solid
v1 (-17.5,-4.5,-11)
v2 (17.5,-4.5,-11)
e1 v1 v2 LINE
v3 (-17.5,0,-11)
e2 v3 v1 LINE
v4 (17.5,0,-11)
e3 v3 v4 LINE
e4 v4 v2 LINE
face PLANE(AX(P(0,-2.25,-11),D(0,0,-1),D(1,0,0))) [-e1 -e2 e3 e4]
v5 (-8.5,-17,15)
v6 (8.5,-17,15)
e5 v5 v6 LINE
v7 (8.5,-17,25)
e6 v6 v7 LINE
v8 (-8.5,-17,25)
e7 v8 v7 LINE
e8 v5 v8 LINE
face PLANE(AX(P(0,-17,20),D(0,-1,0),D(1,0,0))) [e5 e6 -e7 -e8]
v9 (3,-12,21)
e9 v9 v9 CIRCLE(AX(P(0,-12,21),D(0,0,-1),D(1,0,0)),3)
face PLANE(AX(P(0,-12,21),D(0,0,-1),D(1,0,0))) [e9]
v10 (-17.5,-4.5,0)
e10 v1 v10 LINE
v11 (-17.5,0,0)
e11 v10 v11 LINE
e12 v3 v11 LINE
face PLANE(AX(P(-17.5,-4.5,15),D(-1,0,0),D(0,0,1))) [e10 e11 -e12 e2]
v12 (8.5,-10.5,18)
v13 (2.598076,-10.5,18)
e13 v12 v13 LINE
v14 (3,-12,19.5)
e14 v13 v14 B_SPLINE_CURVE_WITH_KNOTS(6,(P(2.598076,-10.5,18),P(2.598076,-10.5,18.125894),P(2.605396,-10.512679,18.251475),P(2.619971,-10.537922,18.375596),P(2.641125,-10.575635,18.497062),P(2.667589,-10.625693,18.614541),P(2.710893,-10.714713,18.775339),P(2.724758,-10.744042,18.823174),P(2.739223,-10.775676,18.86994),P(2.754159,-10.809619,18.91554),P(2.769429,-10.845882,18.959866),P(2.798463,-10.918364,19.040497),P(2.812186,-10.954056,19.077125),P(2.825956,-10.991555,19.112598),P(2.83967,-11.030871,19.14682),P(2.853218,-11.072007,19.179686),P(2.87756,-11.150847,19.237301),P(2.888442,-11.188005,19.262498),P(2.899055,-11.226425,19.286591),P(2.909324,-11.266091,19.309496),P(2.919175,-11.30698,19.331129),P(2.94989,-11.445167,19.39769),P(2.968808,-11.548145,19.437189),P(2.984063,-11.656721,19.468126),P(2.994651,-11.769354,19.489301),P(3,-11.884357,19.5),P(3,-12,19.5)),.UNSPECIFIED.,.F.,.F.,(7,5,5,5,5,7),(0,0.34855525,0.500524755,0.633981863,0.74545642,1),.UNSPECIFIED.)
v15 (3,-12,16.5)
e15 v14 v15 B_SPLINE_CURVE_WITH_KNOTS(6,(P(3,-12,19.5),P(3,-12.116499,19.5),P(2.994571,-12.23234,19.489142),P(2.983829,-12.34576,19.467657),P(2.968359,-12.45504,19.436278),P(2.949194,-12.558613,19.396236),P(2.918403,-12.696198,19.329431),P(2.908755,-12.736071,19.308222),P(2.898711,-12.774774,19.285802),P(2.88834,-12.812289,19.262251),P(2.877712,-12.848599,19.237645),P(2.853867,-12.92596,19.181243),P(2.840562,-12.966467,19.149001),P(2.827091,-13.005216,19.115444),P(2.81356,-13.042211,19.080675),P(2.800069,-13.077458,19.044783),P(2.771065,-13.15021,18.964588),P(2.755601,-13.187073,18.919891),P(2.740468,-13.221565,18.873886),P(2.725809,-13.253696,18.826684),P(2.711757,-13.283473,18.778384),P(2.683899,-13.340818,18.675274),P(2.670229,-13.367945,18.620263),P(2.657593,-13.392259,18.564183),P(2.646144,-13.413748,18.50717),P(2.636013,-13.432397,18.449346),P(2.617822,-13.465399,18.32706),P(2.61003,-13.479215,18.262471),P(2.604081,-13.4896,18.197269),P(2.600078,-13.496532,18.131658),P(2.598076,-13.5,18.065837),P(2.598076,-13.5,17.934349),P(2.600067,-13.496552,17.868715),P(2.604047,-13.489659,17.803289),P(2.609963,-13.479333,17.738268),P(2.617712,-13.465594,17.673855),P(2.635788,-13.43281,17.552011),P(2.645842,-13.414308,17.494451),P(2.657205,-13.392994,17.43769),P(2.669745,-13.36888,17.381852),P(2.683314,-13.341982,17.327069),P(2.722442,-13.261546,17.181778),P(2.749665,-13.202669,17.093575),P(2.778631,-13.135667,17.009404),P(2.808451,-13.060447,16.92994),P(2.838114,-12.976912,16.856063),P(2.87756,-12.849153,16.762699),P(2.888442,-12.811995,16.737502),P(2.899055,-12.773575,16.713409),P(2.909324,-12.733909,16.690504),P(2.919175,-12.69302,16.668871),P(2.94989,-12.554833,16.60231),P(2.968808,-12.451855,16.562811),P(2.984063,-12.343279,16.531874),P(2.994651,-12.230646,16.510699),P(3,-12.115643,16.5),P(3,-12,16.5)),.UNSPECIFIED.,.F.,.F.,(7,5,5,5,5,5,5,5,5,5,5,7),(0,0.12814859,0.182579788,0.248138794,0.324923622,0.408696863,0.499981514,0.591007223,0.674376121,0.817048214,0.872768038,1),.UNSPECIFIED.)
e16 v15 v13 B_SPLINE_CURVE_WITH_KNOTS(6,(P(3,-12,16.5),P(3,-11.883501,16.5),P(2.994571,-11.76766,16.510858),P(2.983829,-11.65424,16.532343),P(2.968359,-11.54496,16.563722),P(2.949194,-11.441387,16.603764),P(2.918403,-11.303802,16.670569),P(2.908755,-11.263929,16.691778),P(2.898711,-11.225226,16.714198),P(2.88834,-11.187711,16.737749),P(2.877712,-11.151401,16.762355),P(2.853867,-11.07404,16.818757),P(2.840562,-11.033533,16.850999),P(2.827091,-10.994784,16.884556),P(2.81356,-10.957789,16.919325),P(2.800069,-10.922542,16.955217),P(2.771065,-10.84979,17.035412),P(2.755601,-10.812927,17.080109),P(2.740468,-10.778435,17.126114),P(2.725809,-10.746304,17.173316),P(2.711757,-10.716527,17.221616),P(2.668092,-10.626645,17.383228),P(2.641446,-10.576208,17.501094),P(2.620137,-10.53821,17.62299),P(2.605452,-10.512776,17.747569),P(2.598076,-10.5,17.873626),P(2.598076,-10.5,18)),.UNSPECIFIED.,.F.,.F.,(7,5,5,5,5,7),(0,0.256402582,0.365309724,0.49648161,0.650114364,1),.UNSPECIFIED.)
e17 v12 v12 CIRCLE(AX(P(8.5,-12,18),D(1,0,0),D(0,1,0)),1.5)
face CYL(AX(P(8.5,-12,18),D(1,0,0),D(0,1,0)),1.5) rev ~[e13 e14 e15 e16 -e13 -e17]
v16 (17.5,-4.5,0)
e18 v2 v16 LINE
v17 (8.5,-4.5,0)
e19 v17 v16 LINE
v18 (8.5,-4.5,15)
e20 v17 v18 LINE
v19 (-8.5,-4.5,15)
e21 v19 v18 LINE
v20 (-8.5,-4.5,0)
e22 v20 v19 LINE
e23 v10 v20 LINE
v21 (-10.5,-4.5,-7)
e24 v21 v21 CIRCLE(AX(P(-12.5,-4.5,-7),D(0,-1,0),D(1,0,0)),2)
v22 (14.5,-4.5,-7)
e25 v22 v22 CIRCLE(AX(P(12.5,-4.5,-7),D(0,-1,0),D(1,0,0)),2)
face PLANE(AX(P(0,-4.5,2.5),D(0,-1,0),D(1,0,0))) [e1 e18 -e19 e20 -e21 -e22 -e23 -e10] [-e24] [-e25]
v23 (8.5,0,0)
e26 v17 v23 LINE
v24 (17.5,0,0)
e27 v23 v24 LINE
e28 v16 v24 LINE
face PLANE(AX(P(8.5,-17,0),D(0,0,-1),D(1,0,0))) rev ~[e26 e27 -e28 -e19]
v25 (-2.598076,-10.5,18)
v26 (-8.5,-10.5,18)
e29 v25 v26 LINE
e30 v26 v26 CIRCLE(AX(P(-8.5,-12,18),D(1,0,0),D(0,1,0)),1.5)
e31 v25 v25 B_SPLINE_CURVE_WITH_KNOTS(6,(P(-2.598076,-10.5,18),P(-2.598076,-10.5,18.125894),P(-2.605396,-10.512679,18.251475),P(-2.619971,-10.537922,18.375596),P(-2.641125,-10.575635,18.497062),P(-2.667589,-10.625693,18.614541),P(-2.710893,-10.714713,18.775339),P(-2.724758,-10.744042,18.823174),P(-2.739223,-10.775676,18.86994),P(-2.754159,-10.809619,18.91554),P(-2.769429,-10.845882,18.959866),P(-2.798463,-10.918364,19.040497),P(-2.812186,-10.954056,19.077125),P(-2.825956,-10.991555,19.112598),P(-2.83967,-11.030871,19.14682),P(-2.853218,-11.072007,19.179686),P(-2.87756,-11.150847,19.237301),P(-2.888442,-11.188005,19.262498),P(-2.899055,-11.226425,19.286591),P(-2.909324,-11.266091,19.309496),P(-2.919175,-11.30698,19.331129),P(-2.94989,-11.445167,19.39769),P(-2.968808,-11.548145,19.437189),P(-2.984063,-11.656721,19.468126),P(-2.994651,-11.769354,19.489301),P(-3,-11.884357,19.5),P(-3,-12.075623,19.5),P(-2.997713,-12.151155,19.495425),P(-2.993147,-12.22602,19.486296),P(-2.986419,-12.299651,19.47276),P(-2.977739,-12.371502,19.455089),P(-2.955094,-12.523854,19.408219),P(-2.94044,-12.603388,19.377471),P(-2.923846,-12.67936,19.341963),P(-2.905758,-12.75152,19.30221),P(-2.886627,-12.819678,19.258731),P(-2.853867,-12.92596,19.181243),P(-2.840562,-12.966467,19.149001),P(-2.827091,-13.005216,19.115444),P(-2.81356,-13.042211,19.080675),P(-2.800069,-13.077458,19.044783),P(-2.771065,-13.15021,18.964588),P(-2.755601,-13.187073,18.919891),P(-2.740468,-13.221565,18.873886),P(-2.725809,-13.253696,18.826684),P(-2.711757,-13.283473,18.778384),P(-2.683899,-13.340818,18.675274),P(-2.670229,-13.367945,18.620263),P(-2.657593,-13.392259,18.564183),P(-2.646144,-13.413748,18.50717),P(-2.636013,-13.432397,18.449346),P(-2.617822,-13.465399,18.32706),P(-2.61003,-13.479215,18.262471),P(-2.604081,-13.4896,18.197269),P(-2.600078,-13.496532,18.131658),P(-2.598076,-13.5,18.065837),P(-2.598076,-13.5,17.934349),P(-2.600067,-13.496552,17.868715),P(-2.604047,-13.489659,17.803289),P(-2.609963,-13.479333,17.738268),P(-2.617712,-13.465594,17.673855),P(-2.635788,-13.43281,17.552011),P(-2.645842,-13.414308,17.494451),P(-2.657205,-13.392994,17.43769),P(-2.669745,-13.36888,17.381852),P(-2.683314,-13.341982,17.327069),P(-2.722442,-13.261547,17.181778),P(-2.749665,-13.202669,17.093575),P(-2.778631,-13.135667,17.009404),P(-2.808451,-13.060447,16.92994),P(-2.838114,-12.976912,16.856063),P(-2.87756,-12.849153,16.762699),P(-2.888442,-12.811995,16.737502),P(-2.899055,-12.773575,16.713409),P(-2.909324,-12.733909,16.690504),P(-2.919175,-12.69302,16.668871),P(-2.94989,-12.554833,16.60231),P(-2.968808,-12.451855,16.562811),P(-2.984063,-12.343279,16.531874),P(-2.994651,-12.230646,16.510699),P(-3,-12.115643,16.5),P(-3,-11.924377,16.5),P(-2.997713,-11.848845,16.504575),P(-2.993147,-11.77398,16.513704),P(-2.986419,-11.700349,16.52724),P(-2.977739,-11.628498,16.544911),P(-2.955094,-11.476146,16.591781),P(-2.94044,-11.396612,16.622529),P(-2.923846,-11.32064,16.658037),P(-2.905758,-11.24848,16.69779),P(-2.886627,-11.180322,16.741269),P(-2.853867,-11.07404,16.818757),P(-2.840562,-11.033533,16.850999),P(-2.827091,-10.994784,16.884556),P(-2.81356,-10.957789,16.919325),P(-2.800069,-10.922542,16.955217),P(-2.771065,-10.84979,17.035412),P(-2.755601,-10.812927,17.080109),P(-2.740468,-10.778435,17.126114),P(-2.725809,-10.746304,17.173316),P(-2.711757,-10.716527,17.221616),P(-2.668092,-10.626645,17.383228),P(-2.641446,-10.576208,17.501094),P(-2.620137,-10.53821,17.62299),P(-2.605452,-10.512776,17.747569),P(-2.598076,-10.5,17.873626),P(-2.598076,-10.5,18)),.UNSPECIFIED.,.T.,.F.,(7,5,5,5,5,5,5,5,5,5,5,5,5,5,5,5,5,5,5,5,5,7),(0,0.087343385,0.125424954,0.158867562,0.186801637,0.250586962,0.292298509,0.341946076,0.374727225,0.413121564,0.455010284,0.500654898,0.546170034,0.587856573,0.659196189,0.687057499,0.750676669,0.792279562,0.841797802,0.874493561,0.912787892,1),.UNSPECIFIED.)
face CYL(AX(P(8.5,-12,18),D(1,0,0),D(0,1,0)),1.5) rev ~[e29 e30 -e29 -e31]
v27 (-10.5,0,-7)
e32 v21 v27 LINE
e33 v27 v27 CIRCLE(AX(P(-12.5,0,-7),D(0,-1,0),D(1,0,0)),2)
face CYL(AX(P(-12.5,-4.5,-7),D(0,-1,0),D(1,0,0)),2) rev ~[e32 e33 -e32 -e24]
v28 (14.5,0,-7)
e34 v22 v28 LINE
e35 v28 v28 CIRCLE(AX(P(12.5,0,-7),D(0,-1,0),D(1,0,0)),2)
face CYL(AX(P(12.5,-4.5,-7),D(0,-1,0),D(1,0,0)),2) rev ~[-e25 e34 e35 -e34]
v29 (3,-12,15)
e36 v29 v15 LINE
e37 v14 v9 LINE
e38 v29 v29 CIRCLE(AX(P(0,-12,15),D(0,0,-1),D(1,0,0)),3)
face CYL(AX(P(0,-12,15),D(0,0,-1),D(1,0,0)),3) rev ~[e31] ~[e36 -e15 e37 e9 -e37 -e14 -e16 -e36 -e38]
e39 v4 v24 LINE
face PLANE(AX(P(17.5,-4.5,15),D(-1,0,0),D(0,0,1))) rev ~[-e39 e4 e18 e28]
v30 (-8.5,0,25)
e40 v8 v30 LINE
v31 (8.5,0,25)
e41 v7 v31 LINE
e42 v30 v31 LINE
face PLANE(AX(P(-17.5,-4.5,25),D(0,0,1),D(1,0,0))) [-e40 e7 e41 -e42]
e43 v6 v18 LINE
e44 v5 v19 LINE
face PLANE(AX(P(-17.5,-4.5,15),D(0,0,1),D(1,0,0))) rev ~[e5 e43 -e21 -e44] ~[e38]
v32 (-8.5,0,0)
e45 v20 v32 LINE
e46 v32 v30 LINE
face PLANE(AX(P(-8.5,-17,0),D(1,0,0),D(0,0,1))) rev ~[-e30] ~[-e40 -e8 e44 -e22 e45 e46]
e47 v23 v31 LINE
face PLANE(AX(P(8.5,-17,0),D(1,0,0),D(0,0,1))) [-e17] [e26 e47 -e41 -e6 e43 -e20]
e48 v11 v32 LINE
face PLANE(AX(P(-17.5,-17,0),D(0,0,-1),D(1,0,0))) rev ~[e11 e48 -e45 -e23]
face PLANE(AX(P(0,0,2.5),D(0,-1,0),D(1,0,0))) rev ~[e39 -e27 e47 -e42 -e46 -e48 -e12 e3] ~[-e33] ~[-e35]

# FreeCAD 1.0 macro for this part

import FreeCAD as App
import Part
import Sketcher
Q = App.Units.Quantity


def add_polygon(sketch, points):
    """Adds a closed chain of lines whose ends are joined by coincident constraints."""
    first, n = sketch.GeometryCount, len(points)
    for a, b in zip(points, points[1:] + points[:1]):
        sketch.addGeometry(Part.LineSegment(App.Vector(*a, 0), App.Vector(*b, 0)), False)
    for i in range(n):
        sketch.addConstraint(Sketcher.Constraint("Coincident", first + i, 2, first + (i + 1) % n, 1))

doc = App.newDocument("Part")
body = doc.addObject("PartDesign::Body", "Body")

# Sketch on XZ plane
sketch1 = doc.addObject("Sketcher::SketchObject", "Sketch")
body.addObject(sketch1)
sketch1.AttachmentSupport = (doc.XZ_Plane, [""])
sketch1.MapMode = "FlatFace"
add_polygon(sketch1, [(-18, 25), (-18, -20), (18, -20), (18, 25)])  # lines 0-3
sketch1.addConstraint(Sketcher.Constraint("Vertical", 0))
sketch1.addConstraint(Sketcher.Constraint("Horizontal", 1))
sketch1.addConstraint(Sketcher.Constraint("Vertical", 2))
sketch1.addConstraint(Sketcher.Constraint("Horizontal", 3))
sketch1.addConstraint(Sketcher.Constraint("DistanceX", 1, 1, 1, 2, Q("35 mm")))
sketch1.addConstraint(Sketcher.Constraint("DistanceY", 0, 2, 0, 1, Q("45 mm")))
sketch1.addConstraint(Sketcher.Constraint("DistanceY", 0, 2, -1, 1, Q("20 mm")))
sketch1.addConstraint(Sketcher.Constraint("DistanceX", 0, 2, -1, 1, Q("17.5 mm")))
pad1 = doc.addObject("PartDesign::Pad", "Pad")
body.addObject(pad1)
pad1.Profile = sketch1
pad1.Length = 4.5

# Sketch on XZ plane
sketch2 = doc.addObject("Sketcher::SketchObject", "Sketch001")
body.addObject(sketch2)
sketch2.AttachmentSupport = (doc.XZ_Plane, [""])
sketch2.MapMode = "FlatFace"
sketch2.AttachmentOffset = App.Placement(App.Vector(0, 0, 4.5), App.Rotation())
sketch2.addGeometry(Part.Circle(App.Vector(12.5, -15, 0), App.Vector(0, 0, 1), 2), False)
sketch2.addGeometry(Part.Circle(App.Vector(-12.5, -15, 0), App.Vector(0, 0, 1), 2), False)
sketch2.addGeometry(Part.Circle(App.Vector(-12.5, -7, 0), App.Vector(0, 0, 1), 2), False)
sketch2.addGeometry(Part.Circle(App.Vector(12.5, -7, 0), App.Vector(0, 0, 1), 2), False)
sketch2.addConstraint(Sketcher.Constraint("Equal", 0, 1))
sketch2.addConstraint(Sketcher.Constraint("Equal", 1, 2))
sketch2.addConstraint(Sketcher.Constraint("Equal", 2, 3))
sketch2.addConstraint(Sketcher.Constraint("Symmetric", 0, 3, 1, 3, -2))
sketch2.addConstraint(Sketcher.Constraint("Symmetric", 2, 3, 3, 3, -2))
sketch2.addConstraint(Sketcher.Constraint("Vertical", 1, 3, 2, 3))
sketch2.addConstraint(Sketcher.Constraint("Diameter", 0, Q("4 mm")))
sketch2.addConstraint(Sketcher.Constraint("DistanceY", 0, 3, -1, 1, Q("15 mm")))
sketch2.addConstraint(Sketcher.Constraint("DistanceY", 2, 3, -1, 1, Q("7 mm")))
sketch2.addConstraint(Sketcher.Constraint("DistanceX", 1, 3, 0, 3, Q("25 mm")))
pocket1 = doc.addObject("PartDesign::Pocket", "Pocket")
body.addObject(pocket1)
pocket1.Profile = sketch2
pocket1.Length = 10

# Sketch on XZ plane
sketch3 = doc.addObject("Sketcher::SketchObject", "Sketch002")
body.addObject(sketch3)
sketch3.AttachmentSupport = (doc.XZ_Plane, [""])
sketch3.MapMode = "FlatFace"
sketch3.AttachmentOffset = App.Placement(App.Vector(0, 0, 4.5), App.Rotation())
add_polygon(sketch3, [(-18, 25), (-18, 15), (18, 15), (18, 25)])  # lines 0-3
sketch3.addConstraint(Sketcher.Constraint("Vertical", 0))
sketch3.addConstraint(Sketcher.Constraint("Horizontal", 1))
sketch3.addConstraint(Sketcher.Constraint("Vertical", 2))
sketch3.addConstraint(Sketcher.Constraint("Horizontal", 3))
sketch3.addConstraint(Sketcher.Constraint("DistanceX", 1, 1, 1, 2, Q("35 mm")))
sketch3.addConstraint(Sketcher.Constraint("DistanceY", 0, 2, 0, 1, Q("10 mm")))
sketch3.addConstraint(Sketcher.Constraint("DistanceY", -1, 1, 0, 2, Q("15 mm")))
sketch3.addConstraint(Sketcher.Constraint("DistanceX", 0, 2, -1, 1, Q("17.5 mm")))
pad2 = doc.addObject("PartDesign::Pad", "Pad001")
body.addObject(pad2)
pad2.Profile = sketch3
pad2.Length = 12.5

# Sketch on XY plane
sketch4 = doc.addObject("Sketcher::SketchObject", "Sketch003")
body.addObject(sketch4)
sketch4.AttachmentSupport = (doc.XY_Plane, [""])
sketch4.MapMode = "FlatFace"
sketch4.AttachmentOffset = App.Placement(App.Vector(0, 0, 15), App.Rotation())
sketch4.addGeometry(Part.Circle(App.Vector(0, -12, 0), App.Vector(0, 0, 1), 3), False)
sketch4.addConstraint(Sketcher.Constraint("PointOnObject", 0, 3, -2))
sketch4.addConstraint(Sketcher.Constraint("Diameter", 0, Q("6 mm")))
sketch4.addConstraint(Sketcher.Constraint("DistanceY", 0, 3, -1, 1, Q("12 mm")))
pocket2 = doc.addObject("PartDesign::Pocket", "Pocket001")
body.addObject(pocket2)
pocket2.Profile = sketch4
pocket2.Length = 6
pocket2.Reversed = True

# Sketch on XY plane
sketch5 = doc.addObject("Sketcher::SketchObject", "Sketch004")
body.addObject(sketch5)
sketch5.AttachmentSupport = (doc.XY_Plane, [""])
sketch5.MapMode = "FlatFace"
sketch5.AttachmentOffset = App.Placement(App.Vector(0, 0, -20), App.Rotation())
add_polygon(sketch5, [(-17.5, -4.5), (-17.5, 0), (17.5, 0), (17.5, -4.5)])  # lines 0-3
sketch5.addConstraint(Sketcher.Constraint("Vertical", 0))
sketch5.addConstraint(Sketcher.Constraint("Horizontal", 1))
sketch5.addConstraint(Sketcher.Constraint("Vertical", 2))
sketch5.addConstraint(Sketcher.Constraint("Horizontal", 3))
sketch5.addConstraint(Sketcher.Constraint("Symmetric", 0, 2, 1, 2, -1, 1))
sketch5.addConstraint(Sketcher.Constraint("DistanceX", 1, 1, 1, 2, Q("35 mm")))
sketch5.addConstraint(Sketcher.Constraint("DistanceY", 0, 1, 0, 2, Q("4.5 mm")))
pocket3 = doc.addObject("PartDesign::Pocket", "Pocket002")
body.addObject(pocket3)
pocket3.Profile = sketch5
pocket3.Length = 2
pocket3.Reversed = True

# Sketch on XZ plane
sketch6 = doc.addObject("Sketcher::SketchObject", "Sketch005")
body.addObject(sketch6)
sketch6.AttachmentSupport = (doc.XZ_Plane, [""])
sketch6.MapMode = "FlatFace"
sketch6.AttachmentOffset = App.Placement(App.Vector(0, 0, 17), App.Rotation())
add_polygon(sketch6, [(-18, 25), (-18, 0), (-8, 0), (-8, 25)])  # lines 0-3
add_polygon(sketch6, [(8, 25), (8, 0), (18, 0), (18, 25)])  # lines 4-7
sketch6.addConstraint(Sketcher.Constraint("Vertical", 0))
sketch6.addConstraint(Sketcher.Constraint("Horizontal", 1))
sketch6.addConstraint(Sketcher.Constraint("Vertical", 2))
sketch6.addConstraint(Sketcher.Constraint("Horizontal", 3))
sketch6.addConstraint(Sketcher.Constraint("Vertical", 4))
sketch6.addConstraint(Sketcher.Constraint("Horizontal", 5))
sketch6.addConstraint(Sketcher.Constraint("Vertical", 6))
sketch6.addConstraint(Sketcher.Constraint("Horizontal", 7))
sketch6.addConstraint(Sketcher.Constraint("Symmetric", 1, 2, 4, 2, -1, 1))
sketch6.addConstraint(Sketcher.Constraint("Symmetric", 0, 2, 5, 2, -2))
sketch6.addConstraint(Sketcher.Constraint("Horizontal", 3, 2, 6, 2))
sketch6.addConstraint(Sketcher.Constraint("DistanceX", 1, 1, 1, 2, Q("9 mm")))
sketch6.addConstraint(Sketcher.Constraint("DistanceY", 0, 2, 0, 1, Q("25 mm")))
sketch6.addConstraint(Sketcher.Constraint("DistanceX", 1, 2, 4, 2, Q("17 mm")))
pocket4 = doc.addObject("PartDesign::Pocket", "Pocket003")
body.addObject(pocket4)
pocket4.Profile = sketch6
pocket4.Type = "ThroughAll"

# Sketch on YZ plane
sketch7 = doc.addObject("Sketcher::SketchObject", "Sketch006")
body.addObject(sketch7)
sketch7.AttachmentSupport = (doc.YZ_Plane, [""])
sketch7.MapMode = "FlatFace"
sketch7.AttachmentOffset = App.Placement(App.Vector(0, 0, 8.5), App.Rotation())
sketch7.addGeometry(Part.Circle(App.Vector(-12, 18, 0), App.Vector(0, 0, 1), 1.5), False)
sketch7.addConstraint(Sketcher.Constraint("Diameter", 0, Q("3 mm")))
sketch7.addConstraint(Sketcher.Constraint("DistanceX", 0, 3, -1, 1, Q("12 mm")))
sketch7.addConstraint(Sketcher.Constraint("DistanceY", -1, 1, 0, 3, Q("18 mm")))
pocket5 = doc.addObject("PartDesign::Pocket", "Pocket004")
body.addObject(pocket5)
pocket5.Profile = sketch7
pocket5.Type = "ThroughAll"

# Sketch on XZ plane
sketch8 = doc.addObject("Sketcher::SketchObject", "Sketch007")
body.addObject(sketch8)
sketch8.AttachmentSupport = (doc.XZ_Plane, [""])
sketch8.MapMode = "FlatFace"
sketch8.AttachmentOffset = App.Placement(App.Vector(0, 0, 4.5), App.Rotation())
add_polygon(sketch8, [(-18, -12), (-18, -18), (18, -18), (18, -12)])  # lines 0-3
sketch8.addConstraint(Sketcher.Constraint("Vertical", 0))
sketch8.addConstraint(Sketcher.Constraint("Horizontal", 1))
sketch8.addConstraint(Sketcher.Constraint("Vertical", 2))
sketch8.addConstraint(Sketcher.Constraint("Horizontal", 3))
sketch8.addConstraint(Sketcher.Constraint("DistanceX", 1, 1, 1, 2, Q("35 mm")))
sketch8.addConstraint(Sketcher.Constraint("DistanceY", 0, 2, 0, 1, Q("6 mm")))
sketch8.addConstraint(Sketcher.Constraint("DistanceY", 0, 2, -1, 1, Q("18 mm")))
sketch8.addConstraint(Sketcher.Constraint("DistanceX", 0, 2, -1, 1, Q("17.5 mm")))
pocket6 = doc.addObject("PartDesign::Pocket", "Pocket005")
body.addObject(pocket6)
pocket6.Profile = sketch8
pocket6.Type = "ThroughAll"

# Sketch on XY plane
sketch9 = doc.addObject("Sketcher::SketchObject", "Sketch008")
body.addObject(sketch9)
sketch9.AttachmentSupport = (doc.XY_Plane, [""])
sketch9.MapMode = "FlatFace"
sketch9.AttachmentOffset = App.Placement(App.Vector(0, 0, -12), App.Rotation())
add_polygon(sketch9, [(-17.5, -4.5), (-17.5, 0), (17.5, 0), (17.5, -4.5)])  # lines 0-3
sketch9.addConstraint(Sketcher.Constraint("Vertical", 0))
sketch9.addConstraint(Sketcher.Constraint("Horizontal", 1))
sketch9.addConstraint(Sketcher.Constraint("Vertical", 2))
sketch9.addConstraint(Sketcher.Constraint("Horizontal", 3))
sketch9.addConstraint(Sketcher.Constraint("Symmetric", 0, 2, 1, 2, -1, 1))
sketch9.addConstraint(Sketcher.Constraint("DistanceX", 1, 1, 1, 2, Q("35 mm")))
sketch9.addConstraint(Sketcher.Constraint("DistanceY", 0, 1, 0, 2, Q("4.5 mm")))
pocket7 = doc.addObject("PartDesign::Pocket", "Pocket006")
body.addObject(pocket7)
pocket7.Profile = sketch9
pocket7.Length = 1
pocket7.Reversed = True

doc.recompute()
